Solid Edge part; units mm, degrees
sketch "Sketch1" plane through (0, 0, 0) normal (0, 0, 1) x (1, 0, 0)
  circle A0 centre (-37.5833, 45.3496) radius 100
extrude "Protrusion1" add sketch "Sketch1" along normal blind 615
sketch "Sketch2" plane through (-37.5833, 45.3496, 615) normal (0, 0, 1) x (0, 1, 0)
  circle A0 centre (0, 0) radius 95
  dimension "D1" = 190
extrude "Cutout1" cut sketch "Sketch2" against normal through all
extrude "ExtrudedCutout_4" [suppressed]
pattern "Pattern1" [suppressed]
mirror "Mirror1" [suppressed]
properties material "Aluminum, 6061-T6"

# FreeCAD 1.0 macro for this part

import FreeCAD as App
import Part
import Sketcher
Q = App.Units.Quantity

doc = App.newDocument("Part")
body = doc.addObject("PartDesign::Body", "Body")

sketch1 = body.newObject("Sketcher::SketchObject", "Sketch")
sketch1.AttachmentSupport = (doc.getObject("XY_Plane"), [""])
sketch1.MapMode = "FlatFace"
sketch1.addGeometry(Part.Circle(App.Vector(-37.5833, 45.3496, 0), App.Vector(0, 0, 1), 100), False)
sketch1.addConstraint([
    Sketcher.Constraint("Diameter", 0, Q("200 mm")),
    Sketcher.Constraint("DistanceX", 0, 3, -1, 1, Q("37.5833 mm")),
    Sketcher.Constraint("DistanceY", -1, 1, 0, 3, Q("45.3496 mm")),
])
pad1 = body.newObject("PartDesign::Pad", "Pad")
pad1.Profile = sketch1
pad1.Length = 615

sketch2 = body.newObject("Sketcher::SketchObject", "Sketch001")
sketch2.AttachmentSupport = (doc.getObject("XY_Plane"), [""])
sketch2.MapMode = "FlatFace"
sketch2.AttachmentOffset = App.Placement(App.Vector(0, 0, 615), App.Rotation())
sketch2.addGeometry(Part.Circle(App.Vector(-37.5833, 45.3496, 0), App.Vector(0, 0, 1), 95), False)
sketch2.addConstraint([
    Sketcher.Constraint("Diameter", 0, Q("190 mm")),
    Sketcher.Constraint("DistanceX", 0, 3, -1, 1, Q("37.5833 mm")),
    Sketcher.Constraint("DistanceY", -1, 1, 0, 3, Q("45.3496 mm")),
])
pocket1 = body.newObject("PartDesign::Pocket", "Pocket")
pocket1.Profile = sketch2
pocket1.Type = "ThroughAll"

doc.recompute()
